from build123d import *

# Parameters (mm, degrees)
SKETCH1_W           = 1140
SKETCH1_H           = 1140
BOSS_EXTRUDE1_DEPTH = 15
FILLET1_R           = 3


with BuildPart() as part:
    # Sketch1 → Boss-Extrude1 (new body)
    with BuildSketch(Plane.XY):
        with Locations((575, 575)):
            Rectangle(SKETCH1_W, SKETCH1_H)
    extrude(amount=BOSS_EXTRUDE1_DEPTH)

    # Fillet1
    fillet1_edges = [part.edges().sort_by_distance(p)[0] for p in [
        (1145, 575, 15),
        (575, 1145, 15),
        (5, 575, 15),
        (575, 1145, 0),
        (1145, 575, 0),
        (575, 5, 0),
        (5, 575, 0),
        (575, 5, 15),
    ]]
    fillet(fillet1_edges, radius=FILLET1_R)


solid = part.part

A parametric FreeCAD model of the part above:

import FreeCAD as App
import Part
import Sketcher
from FreeCAD import Vector


def edges_at(feature, points):
    """Names of the edges that pass closest to the given points."""
    edges = feature.Shape.Edges
    near = lambda p: min(range(len(edges)), key=lambda i: edges[i].distToShape(Part.Vertex(*p))[0])
    return sorted({f"Edge{near(p) + 1}" for p in points})


def add_polygon(sketch, points):
    """Adds a closed chain of lines whose ends are joined by coincident constraints."""
    first, n = sketch.GeometryCount, len(points)
    for a, b in zip(points, points[1:] + points[:1]):
        sketch.addGeometry(Part.LineSegment(App.Vector(*a, 0), App.Vector(*b, 0)), False)
    for i in range(n):
        sketch.addConstraint(Sketcher.Constraint("Coincident", first + i, 2, first + (i + 1) % n, 1))

doc = App.newDocument("Part")
body = doc.addObject("PartDesign::Body", "Body")

# Sketch on XY plane
sketch1 = body.newObject("Sketcher::SketchObject", "Sketch")
sketch1.AttachmentSupport = (doc.getObject("XY_Plane"), [""])
sketch1.MapMode = "FlatFace"
add_polygon(sketch1, [(5, 1145), (5, 5), (1145, 5), (1145, 1145)])  # lines 0-3
sketch1.addConstraint(Sketcher.Constraint("Vertical", 0))
sketch1.addConstraint(Sketcher.Constraint("Horizontal", 1))
sketch1.addConstraint(Sketcher.Constraint("Vertical", 2))
sketch1.addConstraint(Sketcher.Constraint("Horizontal", 3))
sketch1.addConstraint(Sketcher.Constraint("Equal", 3, 0))
sketch1.addConstraint(Sketcher.Constraint("DistanceX", 1, 1, 1, 2, 1140.0))
sketch1.addConstraint(Sketcher.Constraint("DistanceX", -1, 1, 0, 2, 5.0))
sketch1.addConstraint(Sketcher.Constraint("DistanceY", -1, 1, 0, 2, 5.0))
pad1 = body.newObject("PartDesign::Pad", "Pad")
pad1.Profile = sketch1
pad1.Length = 15
doc.recompute()

fillet = body.newObject("PartDesign::Fillet", "Fillet")
fillet.Base = (pad1, edges_at(pad1, [
    (1145, 575, 15),
    (575, 1145, 15),
    (5, 575, 15),
    (575, 1145, 0),
    (1145, 575, 0),
    (575, 5, 0),
    (5, 575, 0),
    (575, 5, 15),
]))
fillet.Radius = 3

doc.recompute()
